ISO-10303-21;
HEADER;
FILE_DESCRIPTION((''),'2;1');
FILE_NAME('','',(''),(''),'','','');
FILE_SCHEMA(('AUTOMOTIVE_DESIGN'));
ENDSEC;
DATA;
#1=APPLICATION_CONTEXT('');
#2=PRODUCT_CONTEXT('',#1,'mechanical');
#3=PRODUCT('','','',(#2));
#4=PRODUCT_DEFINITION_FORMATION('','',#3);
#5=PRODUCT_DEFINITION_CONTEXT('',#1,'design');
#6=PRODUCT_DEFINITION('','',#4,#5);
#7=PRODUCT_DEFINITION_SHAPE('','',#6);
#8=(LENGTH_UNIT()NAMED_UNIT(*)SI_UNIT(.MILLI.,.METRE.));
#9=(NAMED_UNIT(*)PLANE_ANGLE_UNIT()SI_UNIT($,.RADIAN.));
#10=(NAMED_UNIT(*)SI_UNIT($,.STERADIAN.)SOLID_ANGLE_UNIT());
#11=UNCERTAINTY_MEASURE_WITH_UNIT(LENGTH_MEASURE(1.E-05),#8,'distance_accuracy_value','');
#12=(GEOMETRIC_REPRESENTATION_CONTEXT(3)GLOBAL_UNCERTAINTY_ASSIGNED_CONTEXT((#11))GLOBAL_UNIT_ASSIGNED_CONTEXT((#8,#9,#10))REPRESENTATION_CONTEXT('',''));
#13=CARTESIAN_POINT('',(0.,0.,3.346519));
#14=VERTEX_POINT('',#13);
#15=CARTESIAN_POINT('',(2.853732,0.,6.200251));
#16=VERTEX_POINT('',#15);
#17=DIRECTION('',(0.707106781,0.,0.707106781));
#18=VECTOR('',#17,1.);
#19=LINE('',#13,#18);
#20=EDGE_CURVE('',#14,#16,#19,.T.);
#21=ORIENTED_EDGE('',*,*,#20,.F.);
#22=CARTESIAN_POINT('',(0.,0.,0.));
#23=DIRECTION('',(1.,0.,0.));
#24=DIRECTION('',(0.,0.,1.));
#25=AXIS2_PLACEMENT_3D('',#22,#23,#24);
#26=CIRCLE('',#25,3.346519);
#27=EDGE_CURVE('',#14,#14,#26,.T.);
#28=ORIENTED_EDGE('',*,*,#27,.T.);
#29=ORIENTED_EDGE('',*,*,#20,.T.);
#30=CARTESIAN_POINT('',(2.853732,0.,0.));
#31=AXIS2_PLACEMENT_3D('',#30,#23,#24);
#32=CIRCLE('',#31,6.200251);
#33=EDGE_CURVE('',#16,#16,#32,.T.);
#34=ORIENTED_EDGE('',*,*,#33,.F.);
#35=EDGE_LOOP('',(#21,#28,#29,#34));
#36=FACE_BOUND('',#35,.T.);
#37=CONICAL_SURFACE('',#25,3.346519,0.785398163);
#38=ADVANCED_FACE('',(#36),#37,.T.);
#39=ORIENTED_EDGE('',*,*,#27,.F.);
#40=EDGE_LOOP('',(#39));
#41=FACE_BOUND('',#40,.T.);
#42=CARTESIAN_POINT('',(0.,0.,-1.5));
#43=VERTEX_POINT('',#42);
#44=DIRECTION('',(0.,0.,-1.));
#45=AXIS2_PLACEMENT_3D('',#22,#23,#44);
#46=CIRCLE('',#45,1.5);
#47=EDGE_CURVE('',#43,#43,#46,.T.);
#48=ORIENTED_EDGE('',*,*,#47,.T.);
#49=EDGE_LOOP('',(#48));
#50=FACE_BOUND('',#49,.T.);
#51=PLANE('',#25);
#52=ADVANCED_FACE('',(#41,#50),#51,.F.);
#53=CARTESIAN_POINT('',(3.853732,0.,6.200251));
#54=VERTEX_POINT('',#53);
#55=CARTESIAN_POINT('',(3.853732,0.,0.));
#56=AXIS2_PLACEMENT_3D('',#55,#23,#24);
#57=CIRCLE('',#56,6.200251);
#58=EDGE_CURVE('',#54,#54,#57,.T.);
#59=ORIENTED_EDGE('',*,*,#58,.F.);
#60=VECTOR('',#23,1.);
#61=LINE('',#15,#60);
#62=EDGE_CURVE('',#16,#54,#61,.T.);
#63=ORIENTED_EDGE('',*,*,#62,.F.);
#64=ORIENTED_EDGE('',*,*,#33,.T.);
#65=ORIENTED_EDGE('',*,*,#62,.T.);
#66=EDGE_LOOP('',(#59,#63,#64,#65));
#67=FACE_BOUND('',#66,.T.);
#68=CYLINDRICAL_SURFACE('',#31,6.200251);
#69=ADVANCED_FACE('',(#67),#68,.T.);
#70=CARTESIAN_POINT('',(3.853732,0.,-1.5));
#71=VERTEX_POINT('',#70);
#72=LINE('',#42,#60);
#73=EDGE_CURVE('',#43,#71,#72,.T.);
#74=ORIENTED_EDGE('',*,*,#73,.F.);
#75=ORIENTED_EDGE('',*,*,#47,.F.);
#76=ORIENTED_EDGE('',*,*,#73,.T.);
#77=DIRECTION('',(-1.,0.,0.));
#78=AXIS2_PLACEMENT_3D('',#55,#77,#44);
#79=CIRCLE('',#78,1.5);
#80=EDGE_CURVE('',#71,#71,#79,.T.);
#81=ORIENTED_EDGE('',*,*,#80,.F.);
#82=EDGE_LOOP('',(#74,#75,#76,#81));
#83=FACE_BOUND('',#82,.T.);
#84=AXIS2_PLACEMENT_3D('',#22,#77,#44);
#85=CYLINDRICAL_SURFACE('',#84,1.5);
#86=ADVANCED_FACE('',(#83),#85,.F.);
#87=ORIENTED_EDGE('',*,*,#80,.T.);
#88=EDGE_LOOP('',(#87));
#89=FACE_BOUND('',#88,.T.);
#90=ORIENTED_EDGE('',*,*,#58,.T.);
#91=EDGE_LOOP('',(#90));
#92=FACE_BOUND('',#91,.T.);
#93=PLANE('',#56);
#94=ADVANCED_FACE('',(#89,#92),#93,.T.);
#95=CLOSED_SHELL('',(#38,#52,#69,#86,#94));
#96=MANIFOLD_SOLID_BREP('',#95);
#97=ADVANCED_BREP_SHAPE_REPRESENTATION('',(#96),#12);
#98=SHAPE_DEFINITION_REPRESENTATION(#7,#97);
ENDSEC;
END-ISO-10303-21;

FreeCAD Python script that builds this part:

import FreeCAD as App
import Part
import Sketcher
from FreeCAD import Vector
Q = App.Units.Quantity

doc = App.newDocument("Part")
body = doc.addObject("PartDesign::Body", "Body")

# Sketch on XY plane
sketch1 = body.newObject("Sketcher::SketchObject", "Sketch")
sketch1.AttachmentSupport = (doc.getObject("XY_Plane"), [""])
sketch1.MapMode = "FlatFace"
sketch1.addGeometry(Part.Circle(Vector(0, 0, 0), Vector(0, 0, 1), 1.5), False)
sketch1.addConstraint(Sketcher.Constraint("Coincident", 0, 3, -1, 1))
sketch1.addConstraint(Sketcher.Constraint("Diameter", 0, 3.0))
pad1 = body.newObject("PartDesign::Pad", "Pad")
pad1.Profile = sketch1
pad1.Length = 10
body2 = doc.addObject("PartDesign::Body", "Body001")
doc.recompute()

body.Placement = App.Placement(Vector(0, 0, 0), App.Rotation(Vector(0, 1, 0), 90))
boolean = body2.newObject("PartDesign::Boolean", "Boolean")
boolean.Type = "Fuse"
boolean.addObjects([body])
body3 = doc.addObject("PartDesign::Body", "Body002")

# Sketch on XZ plane
sketch2 = body3.newObject("Sketcher::SketchObject", "Sketch001")
sketch2.AttachmentSupport = (doc.getObject("XZ_Plane002"), [""])
sketch2.MapMode = "FlatFace"
sketch2.addGeometry(Part.LineSegment(Vector(2.9, 6.2, 0), Vector(0, 3.3, 0)), False)
sketch2.addGeometry(Part.LineSegment(Vector(0, 3.3, 0), Vector(0, 0, 0)), False)
sketch2.addGeometry(Part.LineSegment(Vector(0, 0, 0), Vector(3.9, 0, 0)), False)
sketch2.addGeometry(Part.LineSegment(Vector(3.9, 0, 0), Vector(3.9, 6.2, 0)), False)
sketch2.addGeometry(Part.LineSegment(Vector(3.9, 6.2, 0), Vector(2.9, 6.2, 0)), False)
sketch2.addConstraint(Sketcher.Constraint("Coincident", 0, 2, 1, 1))
sketch2.addConstraint(Sketcher.Constraint("Coincident", 1, 2, 2, 1))
sketch2.addConstraint(Sketcher.Constraint("Coincident", 2, 2, 3, 1))
sketch2.addConstraint(Sketcher.Constraint("Coincident", 3, 2, 4, 1))
sketch2.addConstraint(Sketcher.Constraint("Coincident", 4, 2, 0, 1))
sketch2.addConstraint(Sketcher.Constraint("Vertical", 1))
sketch2.addConstraint(Sketcher.Constraint("Horizontal", 2))
sketch2.addConstraint(Sketcher.Constraint("Vertical", 3))
sketch2.addConstraint(Sketcher.Constraint("Horizontal", 4))
sketch2.addConstraint(Sketcher.Constraint("Coincident", 1, 2, -1, 1))
sketch2.addConstraint(Sketcher.Constraint("DistanceX", 4, 2, 4, 1, 1.0))
sketch2.addConstraint(Sketcher.Constraint("Angle", 0, Q("-135 deg")))
sketch2.addConstraint(Sketcher.Constraint("DistanceX", 2, 1, 2, 2, 3.853732))
sketch2.addConstraint(Sketcher.Constraint("DistanceY", 1, 2, 1, 1, 3.346519))
revolution = body3.newObject("PartDesign::Revolution", "Revolution")
revolution.Profile = sketch2
revolution.ReferenceAxis = (sketch2, ["H_Axis"])
revolution.Angle = 360
doc.recompute()

boolean2 = body3.newObject("PartDesign::Boolean", "Boolean001")
boolean2.Type = "Cut"
boolean2.addObjects([body2])

doc.recompute()
